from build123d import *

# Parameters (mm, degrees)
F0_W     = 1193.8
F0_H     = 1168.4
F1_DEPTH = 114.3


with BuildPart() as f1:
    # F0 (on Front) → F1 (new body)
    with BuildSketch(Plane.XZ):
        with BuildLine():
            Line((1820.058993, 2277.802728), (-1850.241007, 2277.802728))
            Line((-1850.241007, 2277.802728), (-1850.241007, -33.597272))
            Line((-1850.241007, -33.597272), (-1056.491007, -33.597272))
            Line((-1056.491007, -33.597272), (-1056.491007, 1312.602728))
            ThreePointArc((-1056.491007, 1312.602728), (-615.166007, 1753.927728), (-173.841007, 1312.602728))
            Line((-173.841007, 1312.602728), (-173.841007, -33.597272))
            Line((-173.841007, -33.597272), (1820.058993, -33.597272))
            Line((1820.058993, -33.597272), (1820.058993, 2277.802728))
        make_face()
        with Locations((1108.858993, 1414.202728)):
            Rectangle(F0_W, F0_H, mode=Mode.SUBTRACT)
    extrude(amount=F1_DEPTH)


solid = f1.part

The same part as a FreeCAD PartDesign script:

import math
import FreeCAD as App
import Part
import Sketcher
from FreeCAD import Vector
Q = App.Units.Quantity


def add_polygon(sketch, points):
    """Adds a closed chain of lines whose ends are joined by coincident constraints."""
    first, n = sketch.GeometryCount, len(points)
    for a, b in zip(points, points[1:] + points[:1]):
        sketch.addGeometry(Part.LineSegment(App.Vector(*a, 0), App.Vector(*b, 0)), False)
    for i in range(n):
        sketch.addConstraint(Sketcher.Constraint("Coincident", first + i, 2, first + (i + 1) % n, 1))

doc = App.newDocument("Part")
params = doc.addObject("Spreadsheet::Sheet", "Params")
for row, (alias, value) in enumerate([
    ("sketch1_width", "47 in"),
    ("sketch1_height", "91 in"),
    ("sketch1_height2", "53 in"),
    ("sketch1_height3", "46 in"),
    ("sketch1_width2", "144.5 in"),
    ("pad1_length", "4.5 in"),
], start=1):
    params.set(f"A{row}", alias)
    params.set(f"B{row}", "=" + value)
    params.setAlias(f"B{row}", alias)

body = doc.addObject("PartDesign::Body", "Body")

# Sketch on XZ plane
sketch1 = body.newObject("Sketcher::SketchObject", "Sketch")
sketch1.AttachmentSupport = (doc.getObject("XZ_Plane"), [""])
sketch1.MapMode = "FlatFace"
sketch1.addGeometry(Part.LineSegment(Vector(1820, 2278, 0), Vector(-1850, 2278, 0)), False)  # 0
sketch1.addGeometry(Part.LineSegment(Vector(-1850, 2278, 0), Vector(-1850, -34, 0)), False)  # 1
sketch1.addGeometry(Part.LineSegment(Vector(-1850, -34, 0), Vector(-1056, -34, 0)), False)  # 2
sketch1.addGeometry(Part.LineSegment(Vector(-1056, -34, 0), Vector(-1056, 1313, 0)), False)  # 3
sketch1.addGeometry(Part.ArcOfCircle(Part.Circle(Vector(-615, 1313, 0), Vector(0, 0, 1), 441), math.radians(0), math.radians(180)), False)  # 4
sketch1.addGeometry(Part.LineSegment(Vector(-174, 1313, 0), Vector(-174, -34, 0)), False)  # 5
sketch1.addGeometry(Part.LineSegment(Vector(-174, -34, 0), Vector(1820, -34, 0)), False)  # 6
sketch1.addGeometry(Part.LineSegment(Vector(1820, -34, 0), Vector(1820, 2278, 0)), False)  # 7
add_polygon(sketch1, [(1706, 830), (512, 830), (512, 1998), (1706, 1998)])  # lines 8-11
sketch1.addConstraint([
    Sketcher.Constraint("Coincident", 0, 2, 1, 1),
    Sketcher.Constraint("Coincident", 1, 2, 2, 1),
    Sketcher.Constraint("Coincident", 2, 2, 3, 1),
    Sketcher.Constraint("Tangent", 3, 2, 4, 2),
    Sketcher.Constraint("Tangent", 4, 1, 5, 1),
    Sketcher.Constraint("Coincident", 5, 2, 6, 1),
    Sketcher.Constraint("Coincident", 6, 2, 7, 1),
    Sketcher.Constraint("Coincident", 7, 2, 0, 1),
    Sketcher.Constraint("Horizontal", 0),
    Sketcher.Constraint("Vertical", 1),
    Sketcher.Constraint("Horizontal", 2),
    Sketcher.Constraint("Vertical", 3),
    Sketcher.Constraint("Vertical", 5),
    Sketcher.Constraint("Horizontal", 6),
    Sketcher.Constraint("Vertical", 7),
    Sketcher.Constraint("Horizontal", 8),
    Sketcher.Constraint("Vertical", 9),
    Sketcher.Constraint("Horizontal", 10),
    Sketcher.Constraint("Vertical", 11),
    Sketcher.Constraint("Horizontal", 2, 2, 5, 2),
    Sketcher.Constraint("DistanceX", 8, 2, 8, 1, Q("47 in")),
    Sketcher.Constraint("DistanceY", 1, 2, 1, 1, Q("91 in")),
    Sketcher.Constraint("DistanceY", 3, 1, 3, 2, Q("53 in")),
    Sketcher.Constraint("DistanceY", 9, 1, 9, 2, Q("46 in")),
    Sketcher.Constraint("DistanceX", 0, 2, 0, 1, Q("144.5 in")),
    Sketcher.Constraint("DistanceX", 6, 1, 6, 2, Q("78.5 in")),
    Sketcher.Constraint("Radius", 4, Q("17.375 in")),
    Sketcher.Constraint("DistanceX", 4, 1, 8, 2, Q("27 in")),
    Sketcher.Constraint("DistanceY", 5, 2, 8, 2, Q("34 in")),
    Sketcher.Constraint("DistanceY", -1, 1, 4, 3, Q("1312.602728 mm")),
    Sketcher.Constraint("DistanceX", 4, 3, -1, 1, Q("615.166007 mm")),
])
sketch1.setExpression("Constraints[24]", "Params.sketch1_width")
sketch1.setExpression("Constraints[25]", "Params.sketch1_height")
sketch1.setExpression("Constraints[26]", "Params.sketch1_height2")
sketch1.setExpression("Constraints[27]", "Params.sketch1_height3")
sketch1.setExpression("Constraints[28]", "Params.sketch1_width2")
pad1 = body.newObject("PartDesign::Pad", "Pad")
pad1.Profile = sketch1
pad1.setExpression("Length", "Params.pad1_length")

doc.recompute()
